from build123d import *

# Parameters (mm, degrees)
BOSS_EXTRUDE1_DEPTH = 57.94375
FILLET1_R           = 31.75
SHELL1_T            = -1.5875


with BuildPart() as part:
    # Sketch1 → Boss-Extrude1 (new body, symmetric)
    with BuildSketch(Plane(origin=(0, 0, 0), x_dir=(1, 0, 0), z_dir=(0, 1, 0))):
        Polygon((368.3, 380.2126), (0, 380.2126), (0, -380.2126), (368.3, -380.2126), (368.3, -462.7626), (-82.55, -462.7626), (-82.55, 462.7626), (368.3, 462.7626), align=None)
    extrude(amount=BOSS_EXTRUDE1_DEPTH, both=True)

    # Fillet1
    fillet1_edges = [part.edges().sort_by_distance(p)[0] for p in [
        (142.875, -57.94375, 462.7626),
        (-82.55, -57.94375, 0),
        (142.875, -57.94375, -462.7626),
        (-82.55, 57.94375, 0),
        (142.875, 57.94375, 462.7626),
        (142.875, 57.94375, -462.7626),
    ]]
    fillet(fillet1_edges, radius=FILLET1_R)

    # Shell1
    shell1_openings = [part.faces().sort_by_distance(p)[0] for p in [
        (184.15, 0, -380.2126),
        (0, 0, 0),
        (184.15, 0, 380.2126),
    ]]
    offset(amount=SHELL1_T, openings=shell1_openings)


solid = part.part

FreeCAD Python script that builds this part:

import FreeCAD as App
import Part
import Sketcher
from FreeCAD import Vector
Q = App.Units.Quantity


def edges_at(feature, points):
    """Names of the edges that pass closest to the given points."""
    edges = feature.Shape.Edges
    near = lambda p: min(range(len(edges)), key=lambda i: edges[i].distToShape(Part.Vertex(*p))[0])
    return sorted({f"Edge{near(p) + 1}" for p in points})


def faces_at(feature, points):
    """Names of the faces that lie closest to the given points."""
    faces = feature.Shape.Faces
    near = lambda p: min(range(len(faces)), key=lambda i: faces[i].distToShape(Part.Vertex(*p))[0])
    return sorted({f"Face{near(p) + 1}" for p in points})

doc = App.newDocument("Part")
body = doc.addObject("PartDesign::Body", "Body")

# Sketch on XZ plane
sketch1 = body.newObject("Sketcher::SketchObject", "Sketch")
sketch1.AttachmentSupport = (doc.getObject("XZ_Plane"), [""])
sketch1.MapMode = "FlatFace"
sketch1.addGeometry([
    Part.LineSegment(Vector(0, -380, 0), Vector(368, -380, 0)),  # 0
    Part.LineSegment(Vector(368, -380, 0), Vector(368, -463, 0)),  # 1
    Part.LineSegment(Vector(368, -463, 0), Vector(-83, -463, 0)),  # 2
    Part.LineSegment(Vector(-83, -463, 0), Vector(-83, 463, 0)),  # 3
    Part.LineSegment(Vector(-83, 463, 0), Vector(368, 463, 0)),  # 4
    Part.LineSegment(Vector(368, 463, 0), Vector(368, 380, 0)),  # 5
    Part.LineSegment(Vector(368, 380, 0), Vector(0, 380, 0)),  # 6
    Part.LineSegment(Vector(0, 380, 0), Vector(0, -380, 0)),  # 7
], False)
sketch1.addConstraint([
    Sketcher.Constraint("Coincident", 0, 2, 1, 1),
    Sketcher.Constraint("Coincident", 1, 2, 2, 1),
    Sketcher.Constraint("Coincident", 2, 2, 3, 1),
    Sketcher.Constraint("Coincident", 3, 2, 4, 1),
    Sketcher.Constraint("Coincident", 4, 2, 5, 1),
    Sketcher.Constraint("Coincident", 5, 2, 6, 1),
    Sketcher.Constraint("Coincident", 6, 2, 7, 1),
    Sketcher.Constraint("Coincident", 7, 2, 0, 1),
    Sketcher.Constraint("Horizontal", 0),
    Sketcher.Constraint("Vertical", 1),
    Sketcher.Constraint("Horizontal", 2),
    Sketcher.Constraint("Vertical", 3),
    Sketcher.Constraint("Horizontal", 4),
    Sketcher.Constraint("Vertical", 5),
    Sketcher.Constraint("Horizontal", 6),
    Sketcher.Constraint("Vertical", 7),
    Sketcher.Constraint("Symmetric", 6, 2, 7, 2, -1, 1),
    Sketcher.Constraint("Symmetric", 1, 2, 4, 2, -1),
    Sketcher.Constraint("DistanceX", 0, 1, 0, 2, Q("14.5 in")),
    Sketcher.Constraint("DistanceX", 2, 2, 2, 1, Q("17.75 in")),
    Sketcher.Constraint("DistanceY", 1, 2, 1, 1, Q("3.25 in")),
    Sketcher.Constraint("DistanceY", 3, 1, 3, 2, Q("36.438 in")),
])
pad1 = body.newObject("PartDesign::Pad", "Pad")
pad1.Profile = sketch1
pad1.Length = Q("4.5625 in")
pad1.Midplane = True
doc.recompute()

fillet = body.newObject("PartDesign::Fillet", "Fillet")
fillet.Base = (pad1, edges_at(pad1, [
    (142.875, -57.944, 462.763),
    (-82.55, -57.944, 0),
    (142.875, -57.944, -462.763),
    (-82.55, 57.944, 0),
    (142.875, 57.944, 462.763),
    (142.875, 57.944, -462.763),
]))
fillet.Radius = Q("1.25 in")
doc.recompute()

thickness = body.newObject("PartDesign::Thickness", "Thickness")
thickness.Base = (fillet, faces_at(fillet, [(184.15, 0, -380.213), (0, 0, 0), (184.15, 0, 380.213)]))
thickness.Value = Q("0.0625 in")
thickness.Reversed = True
thickness.Join = "Arc"

doc.recompute()
